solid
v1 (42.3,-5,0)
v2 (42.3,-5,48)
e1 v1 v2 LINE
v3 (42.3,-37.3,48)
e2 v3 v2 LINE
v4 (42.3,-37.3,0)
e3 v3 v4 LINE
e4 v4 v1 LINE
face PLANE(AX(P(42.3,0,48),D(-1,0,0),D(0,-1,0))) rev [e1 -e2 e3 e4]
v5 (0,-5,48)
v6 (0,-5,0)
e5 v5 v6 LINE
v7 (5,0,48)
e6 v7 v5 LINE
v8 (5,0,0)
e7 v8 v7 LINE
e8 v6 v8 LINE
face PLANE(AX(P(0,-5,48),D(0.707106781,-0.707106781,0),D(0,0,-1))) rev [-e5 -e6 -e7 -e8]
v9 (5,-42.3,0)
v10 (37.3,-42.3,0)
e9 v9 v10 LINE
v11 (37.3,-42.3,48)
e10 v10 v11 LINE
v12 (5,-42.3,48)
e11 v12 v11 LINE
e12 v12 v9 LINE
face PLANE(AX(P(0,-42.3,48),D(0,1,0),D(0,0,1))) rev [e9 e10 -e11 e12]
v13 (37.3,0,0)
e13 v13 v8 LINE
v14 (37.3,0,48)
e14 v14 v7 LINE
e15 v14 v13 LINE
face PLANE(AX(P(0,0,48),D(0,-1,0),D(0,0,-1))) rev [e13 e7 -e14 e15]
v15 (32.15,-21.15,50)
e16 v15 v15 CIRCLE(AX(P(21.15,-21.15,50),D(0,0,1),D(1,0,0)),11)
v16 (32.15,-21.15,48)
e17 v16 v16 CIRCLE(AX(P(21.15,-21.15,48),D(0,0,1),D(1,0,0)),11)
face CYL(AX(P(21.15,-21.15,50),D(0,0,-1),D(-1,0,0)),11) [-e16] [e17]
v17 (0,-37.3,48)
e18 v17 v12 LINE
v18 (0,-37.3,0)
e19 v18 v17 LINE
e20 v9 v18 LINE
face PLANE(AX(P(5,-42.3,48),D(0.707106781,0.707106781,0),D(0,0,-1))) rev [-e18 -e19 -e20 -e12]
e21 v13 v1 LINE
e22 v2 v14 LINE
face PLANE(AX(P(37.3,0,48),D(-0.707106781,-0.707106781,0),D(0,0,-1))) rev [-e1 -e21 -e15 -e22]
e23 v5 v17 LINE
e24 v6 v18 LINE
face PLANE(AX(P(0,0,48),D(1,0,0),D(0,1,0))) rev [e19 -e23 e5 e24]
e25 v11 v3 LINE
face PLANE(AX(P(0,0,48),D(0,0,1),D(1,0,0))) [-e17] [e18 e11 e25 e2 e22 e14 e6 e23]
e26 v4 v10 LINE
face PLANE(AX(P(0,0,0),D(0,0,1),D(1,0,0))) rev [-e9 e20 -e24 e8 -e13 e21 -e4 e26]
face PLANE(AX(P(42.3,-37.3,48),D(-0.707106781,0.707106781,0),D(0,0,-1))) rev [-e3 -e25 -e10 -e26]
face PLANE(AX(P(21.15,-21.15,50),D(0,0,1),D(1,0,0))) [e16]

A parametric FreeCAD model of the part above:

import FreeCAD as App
import Part
import Sketcher


def edges_at(feature, points):
    """Names of the edges that pass closest to the given points."""
    edges = feature.Shape.Edges
    near = lambda p: min(range(len(edges)), key=lambda i: edges[i].distToShape(Part.Vertex(*p))[0])
    return sorted({f"Edge{near(p) + 1}" for p in points})

doc = App.newDocument("Part")
params = doc.addObject("Spreadsheet::Sheet", "Params")
for row, (alias, value) in enumerate([
    ("sketch1_width", "42.3 mm"),
    ("pad1_length", "48 mm"),
    ("sketch2_diameter", "22 mm"),
    ("pad2_length", "2 mm"),
    ("chamfer_size", "5 mm"),
], start=1):
    params.set(f"A{row}", alias)
    params.set(f"B{row}", "=" + value)
    params.setAlias(f"B{row}", alias)

body = doc.addObject("PartDesign::Body", "Body")

# Sketch on XY plane
sketch1 = body.newObject("Sketcher::SketchObject", "Sketch")
sketch1.AttachmentSupport = (doc.getObject("XY_Plane"), [""])
sketch1.MapMode = "FlatFace"
sketch1.addGeometry([
    Part.LineSegment(App.Vector(0, 0, 0), App.Vector(0, -42, 0)),
    Part.LineSegment(App.Vector(0, -42, 0), App.Vector(42, -42, 0)),
    Part.LineSegment(App.Vector(42, -42, 0), App.Vector(42, 0, 0)),
    Part.LineSegment(App.Vector(42, 0, 0), App.Vector(0, 0, 0)),
], False)
sketch1.addConstraint([
    Sketcher.Constraint("Coincident", 0, 2, 1, 1),
    Sketcher.Constraint("Coincident", 1, 2, 2, 1),
    Sketcher.Constraint("Coincident", 2, 2, 3, 1),
    Sketcher.Constraint("Coincident", 3, 2, 0, 1),
    Sketcher.Constraint("Vertical", 0),
    Sketcher.Constraint("Horizontal", 1),
    Sketcher.Constraint("Vertical", 2),
    Sketcher.Constraint("Horizontal", 3),
    Sketcher.Constraint("Coincident", 3, 2, -1, 1),
    Sketcher.Constraint("Equal", 3, 0),
    Sketcher.Constraint("DistanceX", 1, 1, 1, 2, 42.3),
])
sketch1.setExpression("Constraints[10]", "Params.sketch1_width")
pad1 = body.newObject("PartDesign::Pad", "Pad")
pad1.Profile = sketch1
pad1.setExpression("Length", "Params.pad1_length")

# Sketch on XY plane
sketch2 = body.newObject("Sketcher::SketchObject", "Sketch001")
sketch2.AttachmentSupport = (doc.getObject("XY_Plane"), [""])
sketch2.MapMode = "FlatFace"
sketch2.AttachmentOffset = App.Placement(App.Vector(0, 0, 48), App.Rotation())
sketch2.addGeometry(Part.Circle(App.Vector(21, -21, 0), App.Vector(0, 0, 1), 11), False)
sketch2.addConstraint([
    Sketcher.Constraint("Diameter", 0, 22.0),
    Sketcher.Constraint("DistanceX", -1, 1, 0, 3, 21.15),
    Sketcher.Constraint("DistanceY", 0, 3, -1, 1, 21.15),
])
sketch2.setExpression("Constraints[0]", "Params.sketch2_diameter")
pad2 = body.newObject("PartDesign::Pad", "Pad001")
pad2.Profile = sketch2
pad2.setExpression("Length", "Params.pad2_length")
doc.recompute()

chamfer = body.newObject("PartDesign::Chamfer", "Chamfer")
chamfer.Base = (pad2, edges_at(pad2, [
    (0, 0, 24),
    (42.3, 0, 24),
    (42.3, -42.3, 24),
    (0, -42.3, 24),
]))
chamfer.setExpression("Size", "Params.chamfer_size")

doc.recompute()
